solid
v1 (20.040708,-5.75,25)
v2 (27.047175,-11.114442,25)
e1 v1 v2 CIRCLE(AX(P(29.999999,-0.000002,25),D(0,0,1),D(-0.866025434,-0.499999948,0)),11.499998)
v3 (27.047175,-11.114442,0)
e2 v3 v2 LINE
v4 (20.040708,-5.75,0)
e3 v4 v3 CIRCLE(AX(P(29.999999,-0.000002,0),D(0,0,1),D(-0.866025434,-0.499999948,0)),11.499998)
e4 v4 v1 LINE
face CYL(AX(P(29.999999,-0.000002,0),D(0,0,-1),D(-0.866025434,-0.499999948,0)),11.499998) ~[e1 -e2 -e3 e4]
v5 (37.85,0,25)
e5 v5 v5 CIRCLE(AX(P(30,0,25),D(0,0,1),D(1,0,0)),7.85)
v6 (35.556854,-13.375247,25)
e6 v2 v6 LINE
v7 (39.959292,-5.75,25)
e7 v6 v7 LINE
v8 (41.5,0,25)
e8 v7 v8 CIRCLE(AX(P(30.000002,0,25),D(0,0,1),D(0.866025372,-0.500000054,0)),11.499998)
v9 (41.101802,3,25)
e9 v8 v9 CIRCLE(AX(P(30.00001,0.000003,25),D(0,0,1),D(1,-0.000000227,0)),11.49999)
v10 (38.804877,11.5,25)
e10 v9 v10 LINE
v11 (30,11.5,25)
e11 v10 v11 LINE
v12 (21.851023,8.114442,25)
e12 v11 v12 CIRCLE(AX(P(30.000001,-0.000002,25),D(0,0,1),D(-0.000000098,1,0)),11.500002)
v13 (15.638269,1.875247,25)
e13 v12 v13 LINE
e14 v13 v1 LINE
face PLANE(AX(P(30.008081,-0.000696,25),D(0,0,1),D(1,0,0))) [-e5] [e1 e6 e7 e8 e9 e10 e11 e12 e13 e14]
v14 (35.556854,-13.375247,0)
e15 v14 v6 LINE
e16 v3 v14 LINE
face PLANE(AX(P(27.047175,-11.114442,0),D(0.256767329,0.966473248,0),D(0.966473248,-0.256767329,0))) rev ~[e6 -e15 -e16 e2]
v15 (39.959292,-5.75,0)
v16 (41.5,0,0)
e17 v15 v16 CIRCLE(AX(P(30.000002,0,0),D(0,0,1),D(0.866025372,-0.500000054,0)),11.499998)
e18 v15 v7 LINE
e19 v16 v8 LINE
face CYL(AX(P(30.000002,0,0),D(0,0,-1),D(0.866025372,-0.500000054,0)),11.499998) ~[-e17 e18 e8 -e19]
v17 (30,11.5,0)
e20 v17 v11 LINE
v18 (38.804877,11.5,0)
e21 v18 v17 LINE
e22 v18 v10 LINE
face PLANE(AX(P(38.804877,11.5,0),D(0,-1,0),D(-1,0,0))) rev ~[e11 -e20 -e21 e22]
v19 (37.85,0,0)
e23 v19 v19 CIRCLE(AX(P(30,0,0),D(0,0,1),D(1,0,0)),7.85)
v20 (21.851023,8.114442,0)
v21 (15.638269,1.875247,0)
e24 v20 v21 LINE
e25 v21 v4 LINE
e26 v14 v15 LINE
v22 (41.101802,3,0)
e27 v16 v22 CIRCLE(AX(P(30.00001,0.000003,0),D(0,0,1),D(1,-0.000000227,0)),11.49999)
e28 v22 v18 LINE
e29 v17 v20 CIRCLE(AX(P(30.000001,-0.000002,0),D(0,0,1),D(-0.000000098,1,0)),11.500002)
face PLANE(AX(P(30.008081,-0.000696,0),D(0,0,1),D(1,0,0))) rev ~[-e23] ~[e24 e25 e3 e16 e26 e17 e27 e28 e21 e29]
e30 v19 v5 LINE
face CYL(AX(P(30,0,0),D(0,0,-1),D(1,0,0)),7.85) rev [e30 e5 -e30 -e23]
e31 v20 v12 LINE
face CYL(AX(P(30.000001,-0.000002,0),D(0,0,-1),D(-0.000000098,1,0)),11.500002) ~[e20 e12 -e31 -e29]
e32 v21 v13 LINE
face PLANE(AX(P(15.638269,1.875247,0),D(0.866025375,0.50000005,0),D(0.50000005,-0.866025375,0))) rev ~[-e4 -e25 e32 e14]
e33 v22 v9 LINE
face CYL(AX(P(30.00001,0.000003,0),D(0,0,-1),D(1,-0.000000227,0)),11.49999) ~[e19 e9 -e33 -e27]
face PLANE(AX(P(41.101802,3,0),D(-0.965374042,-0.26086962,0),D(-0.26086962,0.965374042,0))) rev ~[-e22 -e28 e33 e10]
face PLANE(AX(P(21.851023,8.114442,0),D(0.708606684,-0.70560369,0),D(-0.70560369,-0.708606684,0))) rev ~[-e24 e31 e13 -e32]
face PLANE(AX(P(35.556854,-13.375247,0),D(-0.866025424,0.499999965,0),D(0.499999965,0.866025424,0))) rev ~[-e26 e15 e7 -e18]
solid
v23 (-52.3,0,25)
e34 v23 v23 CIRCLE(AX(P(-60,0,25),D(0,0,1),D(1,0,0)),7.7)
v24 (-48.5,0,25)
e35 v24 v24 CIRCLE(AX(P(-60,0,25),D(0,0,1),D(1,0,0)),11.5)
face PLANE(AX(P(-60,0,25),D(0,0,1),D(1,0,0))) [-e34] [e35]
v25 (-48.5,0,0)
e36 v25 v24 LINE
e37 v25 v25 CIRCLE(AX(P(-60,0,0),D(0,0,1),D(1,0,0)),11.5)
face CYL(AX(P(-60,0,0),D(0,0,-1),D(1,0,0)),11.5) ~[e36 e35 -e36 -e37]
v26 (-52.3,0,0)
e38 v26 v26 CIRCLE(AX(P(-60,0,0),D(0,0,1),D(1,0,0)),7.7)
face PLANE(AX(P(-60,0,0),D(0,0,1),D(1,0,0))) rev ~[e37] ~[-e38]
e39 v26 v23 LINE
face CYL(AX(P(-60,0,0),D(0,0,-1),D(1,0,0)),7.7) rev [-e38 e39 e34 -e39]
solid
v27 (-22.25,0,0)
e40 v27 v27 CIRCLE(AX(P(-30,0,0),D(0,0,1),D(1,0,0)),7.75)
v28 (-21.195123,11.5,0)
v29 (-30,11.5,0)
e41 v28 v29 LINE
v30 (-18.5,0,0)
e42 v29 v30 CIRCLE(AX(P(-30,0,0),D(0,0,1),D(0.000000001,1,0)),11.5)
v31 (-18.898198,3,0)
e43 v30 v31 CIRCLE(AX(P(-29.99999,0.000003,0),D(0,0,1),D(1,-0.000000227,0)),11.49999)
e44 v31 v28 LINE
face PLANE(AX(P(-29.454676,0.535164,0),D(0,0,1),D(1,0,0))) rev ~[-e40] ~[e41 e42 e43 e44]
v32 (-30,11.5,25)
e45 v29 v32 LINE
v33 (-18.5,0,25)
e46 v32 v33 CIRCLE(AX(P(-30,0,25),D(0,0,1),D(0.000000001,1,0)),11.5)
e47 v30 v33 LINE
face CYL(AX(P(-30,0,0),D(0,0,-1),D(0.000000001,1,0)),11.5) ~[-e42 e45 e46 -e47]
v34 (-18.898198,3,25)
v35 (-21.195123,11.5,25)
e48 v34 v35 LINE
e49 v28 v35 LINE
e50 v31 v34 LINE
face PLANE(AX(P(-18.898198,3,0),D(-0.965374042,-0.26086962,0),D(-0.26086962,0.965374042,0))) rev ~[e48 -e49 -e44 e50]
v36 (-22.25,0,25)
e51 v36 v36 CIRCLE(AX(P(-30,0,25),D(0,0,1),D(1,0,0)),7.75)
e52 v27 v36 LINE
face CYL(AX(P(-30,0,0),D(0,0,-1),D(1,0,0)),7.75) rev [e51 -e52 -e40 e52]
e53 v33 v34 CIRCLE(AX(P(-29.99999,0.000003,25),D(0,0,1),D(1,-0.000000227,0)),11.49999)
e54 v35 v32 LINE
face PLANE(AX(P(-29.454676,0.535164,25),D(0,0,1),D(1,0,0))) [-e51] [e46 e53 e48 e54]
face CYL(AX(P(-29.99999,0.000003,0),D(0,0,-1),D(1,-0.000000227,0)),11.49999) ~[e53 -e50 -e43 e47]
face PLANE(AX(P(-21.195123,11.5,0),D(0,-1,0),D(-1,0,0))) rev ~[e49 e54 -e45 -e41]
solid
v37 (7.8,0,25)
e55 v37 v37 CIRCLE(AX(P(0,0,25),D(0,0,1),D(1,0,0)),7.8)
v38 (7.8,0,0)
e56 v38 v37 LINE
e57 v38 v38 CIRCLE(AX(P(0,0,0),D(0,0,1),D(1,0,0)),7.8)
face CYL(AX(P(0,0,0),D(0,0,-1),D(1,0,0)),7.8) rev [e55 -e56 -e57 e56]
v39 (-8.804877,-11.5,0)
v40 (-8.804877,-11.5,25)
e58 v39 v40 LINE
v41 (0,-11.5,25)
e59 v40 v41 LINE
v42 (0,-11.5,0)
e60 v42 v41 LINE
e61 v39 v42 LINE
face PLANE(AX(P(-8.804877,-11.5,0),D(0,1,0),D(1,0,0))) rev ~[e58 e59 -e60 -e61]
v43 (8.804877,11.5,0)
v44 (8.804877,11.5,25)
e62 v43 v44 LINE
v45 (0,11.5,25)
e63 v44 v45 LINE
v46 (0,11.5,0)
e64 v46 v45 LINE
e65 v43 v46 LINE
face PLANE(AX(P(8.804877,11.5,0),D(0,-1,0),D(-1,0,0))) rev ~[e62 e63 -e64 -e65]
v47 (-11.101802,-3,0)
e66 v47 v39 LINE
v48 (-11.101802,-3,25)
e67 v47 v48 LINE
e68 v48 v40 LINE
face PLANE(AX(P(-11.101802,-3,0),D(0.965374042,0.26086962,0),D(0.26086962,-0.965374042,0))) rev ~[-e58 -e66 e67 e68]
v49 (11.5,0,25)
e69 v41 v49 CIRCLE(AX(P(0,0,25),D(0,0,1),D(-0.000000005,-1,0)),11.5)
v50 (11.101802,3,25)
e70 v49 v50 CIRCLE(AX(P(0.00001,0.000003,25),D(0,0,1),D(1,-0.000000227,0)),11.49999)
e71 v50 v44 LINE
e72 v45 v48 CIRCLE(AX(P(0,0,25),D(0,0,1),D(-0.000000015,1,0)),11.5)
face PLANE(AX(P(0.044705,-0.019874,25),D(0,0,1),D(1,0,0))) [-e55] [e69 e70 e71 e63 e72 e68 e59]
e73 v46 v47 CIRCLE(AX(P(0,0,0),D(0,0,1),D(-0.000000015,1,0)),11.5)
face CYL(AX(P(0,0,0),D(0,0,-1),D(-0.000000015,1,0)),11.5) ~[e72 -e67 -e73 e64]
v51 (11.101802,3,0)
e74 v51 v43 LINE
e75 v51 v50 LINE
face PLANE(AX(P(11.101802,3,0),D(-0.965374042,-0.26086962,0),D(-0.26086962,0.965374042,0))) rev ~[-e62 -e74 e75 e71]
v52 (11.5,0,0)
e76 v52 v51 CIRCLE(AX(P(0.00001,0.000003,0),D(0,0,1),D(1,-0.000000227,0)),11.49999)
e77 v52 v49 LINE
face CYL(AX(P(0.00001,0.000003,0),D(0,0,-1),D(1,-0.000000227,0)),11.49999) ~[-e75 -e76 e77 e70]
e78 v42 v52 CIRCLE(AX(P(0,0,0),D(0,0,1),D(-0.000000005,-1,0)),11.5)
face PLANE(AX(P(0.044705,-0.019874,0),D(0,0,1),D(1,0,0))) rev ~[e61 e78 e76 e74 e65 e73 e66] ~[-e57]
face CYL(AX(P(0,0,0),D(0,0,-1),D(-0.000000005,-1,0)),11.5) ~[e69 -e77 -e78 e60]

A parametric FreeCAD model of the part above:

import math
import FreeCAD as App
import Part
import Sketcher

V = App.Vector
Q = App.Units.Quantity

doc = App.newDocument("Part")
params = doc.addObject("Spreadsheet::Sheet", "Params")
for row, (alias, value) in enumerate([
    ("sketch1_diameter", "23 mm"),
    ("sketch1_diameter2", "15.5 mm"),
    ("sketch1_diameter3", "15.6 mm"),
    ("sketch1_diameter4", "15.7 mm"),
    ("sketch1_diameter5", "15.4 mm"),
    ("pad1_length", "25 mm"),
], start=1):
    params.set(f"A{row}", alias)
    params.set(f"B{row}", "=" + value)
    params.setAlias(f"B{row}", alias)

body = doc.addObject("PartDesign::Body", "Body")
body.AllowCompound = True

# Sketch on XY plane
sketch1 = body.newObject("Sketcher::SketchObject", "Sketch")
sketch1.AttachmentSupport = (doc.getObject("XY_Plane"), [""])
sketch1.MapMode = "FlatFace"
sketch1.addGeometry(Part.ArcOfCircle(Part.Circle(V(-30, 0, 0), V(0, 0, 1), 11.5), math.radians(90), math.radians(360)), False)
sketch1.addGeometry(Part.ArcOfCircle(Part.Circle(V(-30, 0, 0), V(0, 0, 1), 11.5), math.radians(0), math.radians(15.12)), False)
sketch1.addGeometry(Part.LineSegment(V(-18.9, 3, 0), V(-21.2, 11.5, 0)), False)
sketch1.addGeometry(Part.LineSegment(V(-21.2, 11.5, 0), V(-30, 11.5, 0)), False)
sketch1.addGeometry(Part.Circle(V(-30, 0, 0), V(0, 0, 1), 7.8), False)
sketch1.addGeometry(Part.ArcOfCircle(Part.Circle(V(0, 0, 0), V(0, 0, 1), 11.5), math.radians(-90), math.radians(0)), False)
sketch1.addGeometry(Part.ArcOfCircle(Part.Circle(V(0, 0, 0), V(0, 0, 1), 11.5), math.radians(0), math.radians(15.12)), False)
sketch1.addGeometry(Part.LineSegment(V(11.1, 3, 0), V(8.8, 11.5, 0)), False)
sketch1.addGeometry(Part.LineSegment(V(8.8, 11.5, 0), V(0, 11.5, 0)), False)
sketch1.addGeometry(Part.ArcOfCircle(Part.Circle(V(0, 0, 0), V(0, 0, 1), 11.5), math.radians(90), math.radians(195)), False)
sketch1.addGeometry(Part.LineSegment(V(-11.1, -3, 0), V(-8.8, -11.5, 0)), False)
sketch1.addGeometry(Part.LineSegment(V(-8.8, -11.5, 0), V(0, -11.5, 0)), False)
sketch1.addGeometry(Part.Circle(V(0, 0, 0), V(0, 0, 1), 7.8), False)
sketch1.addGeometry(Part.ArcOfCircle(Part.Circle(V(30, 0, 0), V(0, 0, 1), 11.5), math.radians(-30), math.radians(0)), False)
sketch1.addGeometry(Part.ArcOfCircle(Part.Circle(V(30, 0, 0), V(0, 0, 1), 11.5), math.radians(0), math.radians(15.12)), False)
sketch1.addGeometry(Part.LineSegment(V(41.1, 3, 0), V(38.8, 11.5, 0)), False)
sketch1.addGeometry(Part.LineSegment(V(38.8, 11.5, 0), V(30, 11.5, 0)), False)
sketch1.addGeometry(Part.ArcOfCircle(Part.Circle(V(30, 0, 0), V(0, 0, 1), 11.5), math.radians(90), math.radians(135)), False)
sketch1.addGeometry(Part.LineSegment(V(21.9, 8.1, 0), V(15.6, 1.9, 0)), False)
sketch1.addGeometry(Part.LineSegment(V(15.6, 1.9, 0), V(20, -5.8, 0)), False)
sketch1.addGeometry(Part.ArcOfCircle(Part.Circle(V(30, 0, 0), V(0, 0, 1), 11.5), math.radians(-150), math.radians(-105)), False)
sketch1.addGeometry(Part.LineSegment(V(27, -11.1, 0), V(35.6, -13.4, 0)), False)
sketch1.addGeometry(Part.LineSegment(V(35.6, -13.4, 0), V(40, -5.8, 0)), False)
sketch1.addGeometry(Part.Circle(V(30, 0, 0), V(0, 0, 1), 7.8), False)
sketch1.addGeometry(Part.Circle(V(-60, 0, 0), V(0, 0, 1), 11.5), False)
sketch1.addGeometry(Part.Circle(V(-60, 0, 0), V(0, 0, 1), 7.7), False)
sketch1.addConstraint(Sketcher.Constraint("Tangent", 0, 2, 1, 1))
sketch1.addConstraint(Sketcher.Constraint("Tangent", 1, 2, 2, 1))
sketch1.addConstraint(Sketcher.Constraint("Coincident", 2, 2, 3, 1))
sketch1.addConstraint(Sketcher.Constraint("Tangent", 3, 2, 0, 1))
sketch1.addConstraint(Sketcher.Constraint("Tangent", 5, 2, 6, 1))
sketch1.addConstraint(Sketcher.Constraint("Tangent", 6, 2, 7, 1))
sketch1.addConstraint(Sketcher.Constraint("Coincident", 7, 2, 8, 1))
sketch1.addConstraint(Sketcher.Constraint("Tangent", 8, 2, 9, 1))
sketch1.addConstraint(Sketcher.Constraint("Tangent", 9, 2, 10, 1))
sketch1.addConstraint(Sketcher.Constraint("Coincident", 10, 2, 11, 1))
sketch1.addConstraint(Sketcher.Constraint("Tangent", 11, 2, 5, 1))
sketch1.addConstraint(Sketcher.Constraint("Tangent", 13, 2, 14, 1))
sketch1.addConstraint(Sketcher.Constraint("Tangent", 14, 2, 15, 1))
sketch1.addConstraint(Sketcher.Constraint("Coincident", 15, 2, 16, 1))
sketch1.addConstraint(Sketcher.Constraint("Tangent", 16, 2, 17, 1))
sketch1.addConstraint(Sketcher.Constraint("Tangent", 17, 2, 18, 1))
sketch1.addConstraint(Sketcher.Constraint("Coincident", 18, 2, 19, 1))
sketch1.addConstraint(Sketcher.Constraint("Tangent", 19, 2, 20, 1))
sketch1.addConstraint(Sketcher.Constraint("Tangent", 20, 2, 21, 1))
sketch1.addConstraint(Sketcher.Constraint("Coincident", 21, 2, 22, 1))
sketch1.addConstraint(Sketcher.Constraint("Tangent", 22, 2, 13, 1))
sketch1.addConstraint(Sketcher.Constraint("Horizontal", 3))
sketch1.addConstraint(Sketcher.Constraint("Horizontal", 8))
sketch1.addConstraint(Sketcher.Constraint("Horizontal", 11))
sketch1.addConstraint(Sketcher.Constraint("Horizontal", 16))
sketch1.addConstraint(Sketcher.Constraint("Coincident", 5, 3, -1, 1))
sketch1.addConstraint(Sketcher.Constraint("Coincident", 9, 3, -1, 1))
sketch1.addConstraint(Sketcher.Constraint("Coincident", 12, 3, -1, 1))
sketch1.addConstraint(Sketcher.Constraint("Coincident", 4, 3, 0, 3))
sketch1.addConstraint(Sketcher.Constraint("Coincident", 17, 3, 13, 3))
sketch1.addConstraint(Sketcher.Constraint("Coincident", 20, 3, 13, 3))
sketch1.addConstraint(Sketcher.Constraint("Coincident", 23, 3, 13, 3))
sketch1.addConstraint(Sketcher.Constraint("Coincident", 25, 3, 24, 3))
sketch1.addConstraint(Sketcher.Constraint("Equal", 0, 5))
sketch1.addConstraint(Sketcher.Constraint("Equal", 1, 6))
sketch1.addConstraint(Sketcher.Constraint("Equal", 5, 9))
sketch1.addConstraint(Sketcher.Constraint("Equal", 5, 13))
sketch1.addConstraint(Sketcher.Constraint("Equal", 6, 14))
sketch1.addConstraint(Sketcher.Constraint("Equal", 9, 17))
sketch1.addConstraint(Sketcher.Constraint("Equal", 13, 20))
sketch1.addConstraint(Sketcher.Constraint("Equal", 17, 24))
sketch1.addConstraint(Sketcher.Constraint("Symmetric", 0, 3, 13, 3, -1, 1))
sketch1.addConstraint(Sketcher.Constraint("Symmetric", 6, 2, 9, 2, -1, 1))
sketch1.addConstraint(Sketcher.Constraint("PointOnObject", 0, 3, -1))
sketch1.addConstraint(Sketcher.Constraint("PointOnObject", 24, 3, -1))
sketch1.addConstraint(Sketcher.Constraint("PointOnObject", 0, 2, -1))
sketch1.addConstraint(Sketcher.Constraint("PointOnObject", 5, 2, -1))
sketch1.addConstraint(Sketcher.Constraint("PointOnObject", 13, 2, -1))
sketch1.addConstraint(Sketcher.Constraint("Parallel", 2, 7))
sketch1.addConstraint(Sketcher.Constraint("Parallel", 10, 15))
sketch1.addConstraint(Sketcher.Constraint("Horizontal", 19, 2, 22, 2))
sketch1.addConstraint(Sketcher.Constraint("Equal", 15, 18))
sketch1.addConstraint(Sketcher.Constraint("Equal", 19, 21))
sketch1.addConstraint(Sketcher.Constraint("Diameter", 24, 23.0))
sketch1.addConstraint(Sketcher.Constraint("Diameter", 4, 15.5))
sketch1.addConstraint(Sketcher.Constraint("Diameter", 12, 15.6))
sketch1.addConstraint(Sketcher.Constraint("Diameter", 23, 15.7))
sketch1.addConstraint(Sketcher.Constraint("Diameter", 25, 15.4))
sketch1.addConstraint(Sketcher.Constraint("Angle", 19, Q("-59.999997 deg")))
sketch1.addConstraint(Sketcher.Constraint("DistanceX", 0, 3, -1, 1, 30.0))
sketch1.addConstraint(Sketcher.Constraint("DistanceX", 24, 3, -1, 1, 60.0))
sketch1.addConstraint(Sketcher.Constraint("DistanceY", -1, 1, 1, 2, 3.0))
sketch1.setExpression("Constraints[53]", "Params.sketch1_diameter")
sketch1.setExpression("Constraints[54]", "Params.sketch1_diameter2")
sketch1.setExpression("Constraints[55]", "Params.sketch1_diameter3")
sketch1.setExpression("Constraints[56]", "Params.sketch1_diameter4")
sketch1.setExpression("Constraints[57]", "Params.sketch1_diameter5")
pad1 = body.newObject("PartDesign::Pad", "Pad")
pad1.Profile = sketch1
pad1.setExpression("Length", "Params.pad1_length")

doc.recompute()
